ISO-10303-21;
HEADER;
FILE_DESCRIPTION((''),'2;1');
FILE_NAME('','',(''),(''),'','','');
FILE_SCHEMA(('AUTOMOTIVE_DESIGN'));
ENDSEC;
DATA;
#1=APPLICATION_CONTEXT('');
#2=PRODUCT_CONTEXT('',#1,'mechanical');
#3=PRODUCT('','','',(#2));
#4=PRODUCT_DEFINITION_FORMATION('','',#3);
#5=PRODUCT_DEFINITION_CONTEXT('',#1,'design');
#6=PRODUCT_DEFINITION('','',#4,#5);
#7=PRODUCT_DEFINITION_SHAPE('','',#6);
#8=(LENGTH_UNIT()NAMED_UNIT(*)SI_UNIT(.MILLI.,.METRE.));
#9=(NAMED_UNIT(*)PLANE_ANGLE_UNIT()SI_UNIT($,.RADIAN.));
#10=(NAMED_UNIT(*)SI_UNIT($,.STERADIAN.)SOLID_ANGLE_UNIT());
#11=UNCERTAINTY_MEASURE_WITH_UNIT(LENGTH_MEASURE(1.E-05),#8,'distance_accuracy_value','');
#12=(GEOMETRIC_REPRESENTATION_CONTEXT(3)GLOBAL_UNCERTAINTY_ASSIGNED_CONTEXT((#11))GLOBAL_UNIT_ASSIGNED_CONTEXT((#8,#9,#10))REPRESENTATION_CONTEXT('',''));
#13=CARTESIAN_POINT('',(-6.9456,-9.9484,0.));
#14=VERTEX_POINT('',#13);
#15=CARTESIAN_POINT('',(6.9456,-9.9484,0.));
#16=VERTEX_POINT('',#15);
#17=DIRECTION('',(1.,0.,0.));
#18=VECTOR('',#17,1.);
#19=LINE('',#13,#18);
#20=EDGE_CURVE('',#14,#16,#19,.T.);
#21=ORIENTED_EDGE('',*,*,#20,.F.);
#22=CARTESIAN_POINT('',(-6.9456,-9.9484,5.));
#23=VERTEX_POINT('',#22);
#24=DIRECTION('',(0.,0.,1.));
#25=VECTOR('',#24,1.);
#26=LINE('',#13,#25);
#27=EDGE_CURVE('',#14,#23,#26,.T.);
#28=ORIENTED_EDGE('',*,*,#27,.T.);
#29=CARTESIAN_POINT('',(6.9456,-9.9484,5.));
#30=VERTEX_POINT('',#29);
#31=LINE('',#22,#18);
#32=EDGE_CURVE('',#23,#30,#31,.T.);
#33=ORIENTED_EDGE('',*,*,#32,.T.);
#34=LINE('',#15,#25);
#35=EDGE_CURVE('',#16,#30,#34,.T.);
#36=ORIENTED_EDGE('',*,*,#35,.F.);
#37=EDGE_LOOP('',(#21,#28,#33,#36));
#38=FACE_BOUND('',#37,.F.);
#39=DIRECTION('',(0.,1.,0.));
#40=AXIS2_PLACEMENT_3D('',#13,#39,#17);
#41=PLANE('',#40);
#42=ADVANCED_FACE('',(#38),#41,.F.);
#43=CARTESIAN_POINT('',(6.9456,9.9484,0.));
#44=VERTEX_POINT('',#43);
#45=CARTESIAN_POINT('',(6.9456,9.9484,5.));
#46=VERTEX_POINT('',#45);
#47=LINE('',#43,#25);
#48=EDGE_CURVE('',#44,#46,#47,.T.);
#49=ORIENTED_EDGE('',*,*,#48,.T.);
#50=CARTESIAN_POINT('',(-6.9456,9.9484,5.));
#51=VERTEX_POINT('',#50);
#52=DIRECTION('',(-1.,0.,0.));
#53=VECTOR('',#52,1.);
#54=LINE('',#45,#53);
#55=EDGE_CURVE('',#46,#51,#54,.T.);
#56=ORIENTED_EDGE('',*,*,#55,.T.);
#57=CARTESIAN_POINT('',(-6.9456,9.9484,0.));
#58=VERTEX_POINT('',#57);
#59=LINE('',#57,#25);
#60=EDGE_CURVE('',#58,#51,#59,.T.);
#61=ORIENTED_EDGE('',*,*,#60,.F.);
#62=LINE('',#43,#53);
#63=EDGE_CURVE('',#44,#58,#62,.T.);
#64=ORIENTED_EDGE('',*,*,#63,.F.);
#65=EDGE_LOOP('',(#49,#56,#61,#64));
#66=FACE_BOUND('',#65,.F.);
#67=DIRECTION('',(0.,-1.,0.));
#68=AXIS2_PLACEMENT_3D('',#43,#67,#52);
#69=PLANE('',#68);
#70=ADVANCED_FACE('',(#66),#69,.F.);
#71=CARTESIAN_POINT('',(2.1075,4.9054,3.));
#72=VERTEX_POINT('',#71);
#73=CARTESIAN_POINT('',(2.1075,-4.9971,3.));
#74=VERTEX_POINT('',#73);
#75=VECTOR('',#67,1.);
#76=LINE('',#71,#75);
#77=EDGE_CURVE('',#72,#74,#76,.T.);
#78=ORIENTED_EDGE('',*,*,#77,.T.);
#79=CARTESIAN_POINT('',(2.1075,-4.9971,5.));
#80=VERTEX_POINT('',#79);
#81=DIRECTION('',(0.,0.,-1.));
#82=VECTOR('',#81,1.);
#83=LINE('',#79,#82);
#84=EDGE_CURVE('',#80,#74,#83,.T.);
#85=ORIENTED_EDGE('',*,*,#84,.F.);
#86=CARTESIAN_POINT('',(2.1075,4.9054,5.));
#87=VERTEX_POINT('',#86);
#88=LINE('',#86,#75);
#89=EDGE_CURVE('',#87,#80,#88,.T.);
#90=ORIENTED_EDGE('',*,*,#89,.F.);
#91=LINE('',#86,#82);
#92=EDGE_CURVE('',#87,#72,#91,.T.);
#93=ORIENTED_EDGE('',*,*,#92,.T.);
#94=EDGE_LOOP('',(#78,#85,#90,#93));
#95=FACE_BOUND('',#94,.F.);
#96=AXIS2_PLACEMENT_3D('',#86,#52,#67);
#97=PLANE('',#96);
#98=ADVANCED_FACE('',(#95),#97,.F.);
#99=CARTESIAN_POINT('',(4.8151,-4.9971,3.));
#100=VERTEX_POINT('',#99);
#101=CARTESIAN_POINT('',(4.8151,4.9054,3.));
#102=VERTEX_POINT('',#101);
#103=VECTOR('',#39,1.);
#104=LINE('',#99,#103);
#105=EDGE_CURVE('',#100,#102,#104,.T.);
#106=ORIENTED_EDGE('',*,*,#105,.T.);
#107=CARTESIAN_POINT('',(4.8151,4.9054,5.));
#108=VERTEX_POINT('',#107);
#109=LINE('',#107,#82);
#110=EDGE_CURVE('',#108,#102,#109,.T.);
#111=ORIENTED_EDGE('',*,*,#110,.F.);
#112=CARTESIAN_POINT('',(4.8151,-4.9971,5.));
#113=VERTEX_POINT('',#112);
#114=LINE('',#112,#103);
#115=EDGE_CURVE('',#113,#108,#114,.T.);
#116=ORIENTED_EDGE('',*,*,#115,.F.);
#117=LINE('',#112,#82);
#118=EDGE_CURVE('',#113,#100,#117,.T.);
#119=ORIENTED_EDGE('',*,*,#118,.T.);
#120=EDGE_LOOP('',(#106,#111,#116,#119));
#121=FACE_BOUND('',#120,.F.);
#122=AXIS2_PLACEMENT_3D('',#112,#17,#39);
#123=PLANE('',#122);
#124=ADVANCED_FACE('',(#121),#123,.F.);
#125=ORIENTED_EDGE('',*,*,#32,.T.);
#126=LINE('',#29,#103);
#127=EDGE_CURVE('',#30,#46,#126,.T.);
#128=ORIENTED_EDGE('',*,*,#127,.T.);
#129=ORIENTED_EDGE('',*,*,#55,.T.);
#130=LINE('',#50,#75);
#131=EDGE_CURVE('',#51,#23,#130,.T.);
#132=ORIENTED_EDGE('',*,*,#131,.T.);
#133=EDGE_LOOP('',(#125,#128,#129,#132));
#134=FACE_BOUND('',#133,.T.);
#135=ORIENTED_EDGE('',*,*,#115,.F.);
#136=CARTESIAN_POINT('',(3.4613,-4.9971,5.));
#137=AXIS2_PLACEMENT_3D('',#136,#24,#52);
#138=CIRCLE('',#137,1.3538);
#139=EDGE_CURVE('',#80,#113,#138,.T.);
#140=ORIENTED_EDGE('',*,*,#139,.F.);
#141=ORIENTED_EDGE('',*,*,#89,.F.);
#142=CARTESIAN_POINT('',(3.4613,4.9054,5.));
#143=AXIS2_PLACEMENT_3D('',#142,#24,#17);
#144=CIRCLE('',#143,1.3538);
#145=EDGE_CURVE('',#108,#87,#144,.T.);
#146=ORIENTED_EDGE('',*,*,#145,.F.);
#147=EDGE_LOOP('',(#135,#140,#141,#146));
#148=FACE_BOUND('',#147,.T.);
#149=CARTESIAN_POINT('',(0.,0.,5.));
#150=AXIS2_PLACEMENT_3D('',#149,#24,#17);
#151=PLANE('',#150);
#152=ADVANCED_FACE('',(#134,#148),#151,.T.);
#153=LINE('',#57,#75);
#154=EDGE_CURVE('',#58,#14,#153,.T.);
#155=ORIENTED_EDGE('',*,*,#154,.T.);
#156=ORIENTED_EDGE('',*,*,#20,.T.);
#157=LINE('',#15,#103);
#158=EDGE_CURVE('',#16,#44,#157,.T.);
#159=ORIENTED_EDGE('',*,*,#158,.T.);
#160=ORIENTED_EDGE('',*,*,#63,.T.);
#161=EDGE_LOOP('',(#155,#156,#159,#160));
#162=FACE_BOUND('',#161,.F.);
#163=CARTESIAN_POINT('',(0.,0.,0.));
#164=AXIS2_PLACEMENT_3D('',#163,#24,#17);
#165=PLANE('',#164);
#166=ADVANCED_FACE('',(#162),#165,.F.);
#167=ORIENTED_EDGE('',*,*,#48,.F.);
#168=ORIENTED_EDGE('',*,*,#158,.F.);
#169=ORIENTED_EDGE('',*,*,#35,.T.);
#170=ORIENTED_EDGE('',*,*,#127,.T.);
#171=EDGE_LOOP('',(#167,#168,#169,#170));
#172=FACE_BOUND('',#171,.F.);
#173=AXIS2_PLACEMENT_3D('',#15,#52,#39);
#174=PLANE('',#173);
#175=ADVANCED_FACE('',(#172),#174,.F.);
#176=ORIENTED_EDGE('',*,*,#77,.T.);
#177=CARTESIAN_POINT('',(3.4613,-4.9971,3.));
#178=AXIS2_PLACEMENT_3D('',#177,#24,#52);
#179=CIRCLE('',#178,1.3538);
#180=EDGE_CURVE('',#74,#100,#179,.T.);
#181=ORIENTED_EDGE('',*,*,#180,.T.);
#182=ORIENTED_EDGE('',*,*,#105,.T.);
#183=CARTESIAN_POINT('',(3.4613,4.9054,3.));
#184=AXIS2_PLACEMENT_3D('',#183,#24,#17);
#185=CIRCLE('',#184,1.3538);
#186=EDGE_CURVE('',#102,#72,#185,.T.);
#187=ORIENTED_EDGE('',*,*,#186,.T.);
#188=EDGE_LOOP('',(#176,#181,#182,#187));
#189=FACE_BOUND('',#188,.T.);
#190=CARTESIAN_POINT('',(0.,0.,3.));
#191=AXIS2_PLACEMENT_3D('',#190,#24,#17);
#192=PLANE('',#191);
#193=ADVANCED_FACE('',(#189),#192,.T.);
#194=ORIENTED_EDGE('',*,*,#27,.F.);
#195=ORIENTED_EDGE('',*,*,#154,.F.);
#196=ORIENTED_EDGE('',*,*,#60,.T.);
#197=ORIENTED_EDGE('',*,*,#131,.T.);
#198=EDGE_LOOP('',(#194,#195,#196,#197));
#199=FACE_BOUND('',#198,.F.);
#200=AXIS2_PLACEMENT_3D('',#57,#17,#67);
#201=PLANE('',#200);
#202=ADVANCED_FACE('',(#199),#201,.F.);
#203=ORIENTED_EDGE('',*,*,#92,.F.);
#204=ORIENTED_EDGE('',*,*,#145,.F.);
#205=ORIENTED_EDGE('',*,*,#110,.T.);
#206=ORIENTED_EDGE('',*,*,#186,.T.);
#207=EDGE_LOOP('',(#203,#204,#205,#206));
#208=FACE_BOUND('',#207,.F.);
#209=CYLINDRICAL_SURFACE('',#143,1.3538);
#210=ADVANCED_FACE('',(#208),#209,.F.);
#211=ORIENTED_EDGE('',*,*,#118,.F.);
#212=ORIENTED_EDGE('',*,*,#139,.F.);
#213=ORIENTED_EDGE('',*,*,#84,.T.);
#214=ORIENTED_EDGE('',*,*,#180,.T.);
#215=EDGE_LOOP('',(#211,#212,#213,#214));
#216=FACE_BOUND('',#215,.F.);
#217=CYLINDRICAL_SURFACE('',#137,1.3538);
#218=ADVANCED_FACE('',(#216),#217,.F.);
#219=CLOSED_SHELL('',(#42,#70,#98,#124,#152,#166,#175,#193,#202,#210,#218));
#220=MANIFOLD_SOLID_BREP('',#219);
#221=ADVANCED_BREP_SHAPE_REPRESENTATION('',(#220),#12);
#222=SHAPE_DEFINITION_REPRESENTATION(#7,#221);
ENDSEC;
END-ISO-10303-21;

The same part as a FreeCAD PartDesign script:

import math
import FreeCAD as App
import Part
import Sketcher
Q = App.Units.Quantity

doc = App.newDocument("Part")
body = doc.addObject("PartDesign::Body", "Body")

# Sketch on XY plane
sketch1 = body.newObject("Sketcher::SketchObject", "Sketch")
sketch1.AttachmentSupport = (doc.getObject("XY_Plane"), [""])
sketch1.MapMode = "FlatFace"
sketch1.addGeometry(Part.LineSegment(App.Vector(-7, 10, 0), App.Vector(-7, -10, 0)), False)
sketch1.addGeometry(Part.LineSegment(App.Vector(-7, -10, 0), App.Vector(7, -10, 0)), False)
sketch1.addGeometry(Part.LineSegment(App.Vector(7, -10, 0), App.Vector(7, 10, 0)), False)
sketch1.addGeometry(Part.LineSegment(App.Vector(7, 10, 0), App.Vector(-7, 10, 0)), False)
sketch1.addConstraint(Sketcher.Constraint("Coincident", 0, 2, 1, 1))
sketch1.addConstraint(Sketcher.Constraint("Coincident", 1, 2, 2, 1))
sketch1.addConstraint(Sketcher.Constraint("Coincident", 2, 2, 3, 1))
sketch1.addConstraint(Sketcher.Constraint("Coincident", 3, 2, 0, 1))
sketch1.addConstraint(Sketcher.Constraint("Vertical", 0))
sketch1.addConstraint(Sketcher.Constraint("Horizontal", 1))
sketch1.addConstraint(Sketcher.Constraint("Vertical", 2))
sketch1.addConstraint(Sketcher.Constraint("Horizontal", 3))
sketch1.addConstraint(Sketcher.Constraint("Symmetric", 0, 2, 2, 2, -1, 1))
sketch1.addConstraint(Sketcher.Constraint("DistanceX", 1, 1, 1, 2, Q("13.8912 mm")))
sketch1.addConstraint(Sketcher.Constraint("DistanceY", 0, 2, 0, 1, Q("19.8968 mm")))
pad1 = body.newObject("PartDesign::Pad", "Pad")
pad1.Profile = sketch1
pad1.Length = 5

# Sketch on XY plane
sketch2 = body.newObject("Sketcher::SketchObject", "Sketch001")
sketch2.AttachmentSupport = (doc.getObject("XY_Plane"), [""])
sketch2.MapMode = "FlatFace"
sketch2.AttachmentOffset = App.Placement(App.Vector(0, 0, 5), App.Rotation())
sketch2.addGeometry(Part.ArcOfCircle(Part.Circle(App.Vector(3.5, 4.9, 0), App.Vector(0, 0, 1), 1.4), math.radians(0), math.radians(180)), False)
sketch2.addGeometry(Part.LineSegment(App.Vector(2.1, 4.9, 0), App.Vector(2.1, -5, 0)), False)
sketch2.addGeometry(Part.ArcOfCircle(Part.Circle(App.Vector(3.5, -5, 0), App.Vector(0, 0, 1), 1.4), math.radians(180), math.radians(360)), False)
sketch2.addGeometry(Part.LineSegment(App.Vector(4.8, -5, 0), App.Vector(4.8, 4.9, 0)), False)
sketch2.addConstraint(Sketcher.Constraint("Tangent", 0, 2, 1, 1))
sketch2.addConstraint(Sketcher.Constraint("Tangent", 1, 2, 2, 1))
sketch2.addConstraint(Sketcher.Constraint("Tangent", 2, 2, 3, 1))
sketch2.addConstraint(Sketcher.Constraint("Tangent", 3, 2, 0, 1))
sketch2.addConstraint(Sketcher.Constraint("Vertical", 1))
sketch2.addConstraint(Sketcher.Constraint("Vertical", 3))
sketch2.addConstraint(Sketcher.Constraint("Radius", 0, Q("1.3538 mm")))
sketch2.addConstraint(Sketcher.Constraint("DistanceY", 1, 2, 1, 1, Q("9.9025 mm")))
sketch2.addConstraint(Sketcher.Constraint("DistanceY", 2, 3, -1, 1, Q("4.997 mm")))
sketch2.addConstraint(Sketcher.Constraint("DistanceX", -1, 1, 2, 2, Q("4.815 mm")))
pocket1 = body.newObject("PartDesign::Pocket", "Pocket")
pocket1.Profile = sketch2
pocket1.Length = 2

doc.recompute()
